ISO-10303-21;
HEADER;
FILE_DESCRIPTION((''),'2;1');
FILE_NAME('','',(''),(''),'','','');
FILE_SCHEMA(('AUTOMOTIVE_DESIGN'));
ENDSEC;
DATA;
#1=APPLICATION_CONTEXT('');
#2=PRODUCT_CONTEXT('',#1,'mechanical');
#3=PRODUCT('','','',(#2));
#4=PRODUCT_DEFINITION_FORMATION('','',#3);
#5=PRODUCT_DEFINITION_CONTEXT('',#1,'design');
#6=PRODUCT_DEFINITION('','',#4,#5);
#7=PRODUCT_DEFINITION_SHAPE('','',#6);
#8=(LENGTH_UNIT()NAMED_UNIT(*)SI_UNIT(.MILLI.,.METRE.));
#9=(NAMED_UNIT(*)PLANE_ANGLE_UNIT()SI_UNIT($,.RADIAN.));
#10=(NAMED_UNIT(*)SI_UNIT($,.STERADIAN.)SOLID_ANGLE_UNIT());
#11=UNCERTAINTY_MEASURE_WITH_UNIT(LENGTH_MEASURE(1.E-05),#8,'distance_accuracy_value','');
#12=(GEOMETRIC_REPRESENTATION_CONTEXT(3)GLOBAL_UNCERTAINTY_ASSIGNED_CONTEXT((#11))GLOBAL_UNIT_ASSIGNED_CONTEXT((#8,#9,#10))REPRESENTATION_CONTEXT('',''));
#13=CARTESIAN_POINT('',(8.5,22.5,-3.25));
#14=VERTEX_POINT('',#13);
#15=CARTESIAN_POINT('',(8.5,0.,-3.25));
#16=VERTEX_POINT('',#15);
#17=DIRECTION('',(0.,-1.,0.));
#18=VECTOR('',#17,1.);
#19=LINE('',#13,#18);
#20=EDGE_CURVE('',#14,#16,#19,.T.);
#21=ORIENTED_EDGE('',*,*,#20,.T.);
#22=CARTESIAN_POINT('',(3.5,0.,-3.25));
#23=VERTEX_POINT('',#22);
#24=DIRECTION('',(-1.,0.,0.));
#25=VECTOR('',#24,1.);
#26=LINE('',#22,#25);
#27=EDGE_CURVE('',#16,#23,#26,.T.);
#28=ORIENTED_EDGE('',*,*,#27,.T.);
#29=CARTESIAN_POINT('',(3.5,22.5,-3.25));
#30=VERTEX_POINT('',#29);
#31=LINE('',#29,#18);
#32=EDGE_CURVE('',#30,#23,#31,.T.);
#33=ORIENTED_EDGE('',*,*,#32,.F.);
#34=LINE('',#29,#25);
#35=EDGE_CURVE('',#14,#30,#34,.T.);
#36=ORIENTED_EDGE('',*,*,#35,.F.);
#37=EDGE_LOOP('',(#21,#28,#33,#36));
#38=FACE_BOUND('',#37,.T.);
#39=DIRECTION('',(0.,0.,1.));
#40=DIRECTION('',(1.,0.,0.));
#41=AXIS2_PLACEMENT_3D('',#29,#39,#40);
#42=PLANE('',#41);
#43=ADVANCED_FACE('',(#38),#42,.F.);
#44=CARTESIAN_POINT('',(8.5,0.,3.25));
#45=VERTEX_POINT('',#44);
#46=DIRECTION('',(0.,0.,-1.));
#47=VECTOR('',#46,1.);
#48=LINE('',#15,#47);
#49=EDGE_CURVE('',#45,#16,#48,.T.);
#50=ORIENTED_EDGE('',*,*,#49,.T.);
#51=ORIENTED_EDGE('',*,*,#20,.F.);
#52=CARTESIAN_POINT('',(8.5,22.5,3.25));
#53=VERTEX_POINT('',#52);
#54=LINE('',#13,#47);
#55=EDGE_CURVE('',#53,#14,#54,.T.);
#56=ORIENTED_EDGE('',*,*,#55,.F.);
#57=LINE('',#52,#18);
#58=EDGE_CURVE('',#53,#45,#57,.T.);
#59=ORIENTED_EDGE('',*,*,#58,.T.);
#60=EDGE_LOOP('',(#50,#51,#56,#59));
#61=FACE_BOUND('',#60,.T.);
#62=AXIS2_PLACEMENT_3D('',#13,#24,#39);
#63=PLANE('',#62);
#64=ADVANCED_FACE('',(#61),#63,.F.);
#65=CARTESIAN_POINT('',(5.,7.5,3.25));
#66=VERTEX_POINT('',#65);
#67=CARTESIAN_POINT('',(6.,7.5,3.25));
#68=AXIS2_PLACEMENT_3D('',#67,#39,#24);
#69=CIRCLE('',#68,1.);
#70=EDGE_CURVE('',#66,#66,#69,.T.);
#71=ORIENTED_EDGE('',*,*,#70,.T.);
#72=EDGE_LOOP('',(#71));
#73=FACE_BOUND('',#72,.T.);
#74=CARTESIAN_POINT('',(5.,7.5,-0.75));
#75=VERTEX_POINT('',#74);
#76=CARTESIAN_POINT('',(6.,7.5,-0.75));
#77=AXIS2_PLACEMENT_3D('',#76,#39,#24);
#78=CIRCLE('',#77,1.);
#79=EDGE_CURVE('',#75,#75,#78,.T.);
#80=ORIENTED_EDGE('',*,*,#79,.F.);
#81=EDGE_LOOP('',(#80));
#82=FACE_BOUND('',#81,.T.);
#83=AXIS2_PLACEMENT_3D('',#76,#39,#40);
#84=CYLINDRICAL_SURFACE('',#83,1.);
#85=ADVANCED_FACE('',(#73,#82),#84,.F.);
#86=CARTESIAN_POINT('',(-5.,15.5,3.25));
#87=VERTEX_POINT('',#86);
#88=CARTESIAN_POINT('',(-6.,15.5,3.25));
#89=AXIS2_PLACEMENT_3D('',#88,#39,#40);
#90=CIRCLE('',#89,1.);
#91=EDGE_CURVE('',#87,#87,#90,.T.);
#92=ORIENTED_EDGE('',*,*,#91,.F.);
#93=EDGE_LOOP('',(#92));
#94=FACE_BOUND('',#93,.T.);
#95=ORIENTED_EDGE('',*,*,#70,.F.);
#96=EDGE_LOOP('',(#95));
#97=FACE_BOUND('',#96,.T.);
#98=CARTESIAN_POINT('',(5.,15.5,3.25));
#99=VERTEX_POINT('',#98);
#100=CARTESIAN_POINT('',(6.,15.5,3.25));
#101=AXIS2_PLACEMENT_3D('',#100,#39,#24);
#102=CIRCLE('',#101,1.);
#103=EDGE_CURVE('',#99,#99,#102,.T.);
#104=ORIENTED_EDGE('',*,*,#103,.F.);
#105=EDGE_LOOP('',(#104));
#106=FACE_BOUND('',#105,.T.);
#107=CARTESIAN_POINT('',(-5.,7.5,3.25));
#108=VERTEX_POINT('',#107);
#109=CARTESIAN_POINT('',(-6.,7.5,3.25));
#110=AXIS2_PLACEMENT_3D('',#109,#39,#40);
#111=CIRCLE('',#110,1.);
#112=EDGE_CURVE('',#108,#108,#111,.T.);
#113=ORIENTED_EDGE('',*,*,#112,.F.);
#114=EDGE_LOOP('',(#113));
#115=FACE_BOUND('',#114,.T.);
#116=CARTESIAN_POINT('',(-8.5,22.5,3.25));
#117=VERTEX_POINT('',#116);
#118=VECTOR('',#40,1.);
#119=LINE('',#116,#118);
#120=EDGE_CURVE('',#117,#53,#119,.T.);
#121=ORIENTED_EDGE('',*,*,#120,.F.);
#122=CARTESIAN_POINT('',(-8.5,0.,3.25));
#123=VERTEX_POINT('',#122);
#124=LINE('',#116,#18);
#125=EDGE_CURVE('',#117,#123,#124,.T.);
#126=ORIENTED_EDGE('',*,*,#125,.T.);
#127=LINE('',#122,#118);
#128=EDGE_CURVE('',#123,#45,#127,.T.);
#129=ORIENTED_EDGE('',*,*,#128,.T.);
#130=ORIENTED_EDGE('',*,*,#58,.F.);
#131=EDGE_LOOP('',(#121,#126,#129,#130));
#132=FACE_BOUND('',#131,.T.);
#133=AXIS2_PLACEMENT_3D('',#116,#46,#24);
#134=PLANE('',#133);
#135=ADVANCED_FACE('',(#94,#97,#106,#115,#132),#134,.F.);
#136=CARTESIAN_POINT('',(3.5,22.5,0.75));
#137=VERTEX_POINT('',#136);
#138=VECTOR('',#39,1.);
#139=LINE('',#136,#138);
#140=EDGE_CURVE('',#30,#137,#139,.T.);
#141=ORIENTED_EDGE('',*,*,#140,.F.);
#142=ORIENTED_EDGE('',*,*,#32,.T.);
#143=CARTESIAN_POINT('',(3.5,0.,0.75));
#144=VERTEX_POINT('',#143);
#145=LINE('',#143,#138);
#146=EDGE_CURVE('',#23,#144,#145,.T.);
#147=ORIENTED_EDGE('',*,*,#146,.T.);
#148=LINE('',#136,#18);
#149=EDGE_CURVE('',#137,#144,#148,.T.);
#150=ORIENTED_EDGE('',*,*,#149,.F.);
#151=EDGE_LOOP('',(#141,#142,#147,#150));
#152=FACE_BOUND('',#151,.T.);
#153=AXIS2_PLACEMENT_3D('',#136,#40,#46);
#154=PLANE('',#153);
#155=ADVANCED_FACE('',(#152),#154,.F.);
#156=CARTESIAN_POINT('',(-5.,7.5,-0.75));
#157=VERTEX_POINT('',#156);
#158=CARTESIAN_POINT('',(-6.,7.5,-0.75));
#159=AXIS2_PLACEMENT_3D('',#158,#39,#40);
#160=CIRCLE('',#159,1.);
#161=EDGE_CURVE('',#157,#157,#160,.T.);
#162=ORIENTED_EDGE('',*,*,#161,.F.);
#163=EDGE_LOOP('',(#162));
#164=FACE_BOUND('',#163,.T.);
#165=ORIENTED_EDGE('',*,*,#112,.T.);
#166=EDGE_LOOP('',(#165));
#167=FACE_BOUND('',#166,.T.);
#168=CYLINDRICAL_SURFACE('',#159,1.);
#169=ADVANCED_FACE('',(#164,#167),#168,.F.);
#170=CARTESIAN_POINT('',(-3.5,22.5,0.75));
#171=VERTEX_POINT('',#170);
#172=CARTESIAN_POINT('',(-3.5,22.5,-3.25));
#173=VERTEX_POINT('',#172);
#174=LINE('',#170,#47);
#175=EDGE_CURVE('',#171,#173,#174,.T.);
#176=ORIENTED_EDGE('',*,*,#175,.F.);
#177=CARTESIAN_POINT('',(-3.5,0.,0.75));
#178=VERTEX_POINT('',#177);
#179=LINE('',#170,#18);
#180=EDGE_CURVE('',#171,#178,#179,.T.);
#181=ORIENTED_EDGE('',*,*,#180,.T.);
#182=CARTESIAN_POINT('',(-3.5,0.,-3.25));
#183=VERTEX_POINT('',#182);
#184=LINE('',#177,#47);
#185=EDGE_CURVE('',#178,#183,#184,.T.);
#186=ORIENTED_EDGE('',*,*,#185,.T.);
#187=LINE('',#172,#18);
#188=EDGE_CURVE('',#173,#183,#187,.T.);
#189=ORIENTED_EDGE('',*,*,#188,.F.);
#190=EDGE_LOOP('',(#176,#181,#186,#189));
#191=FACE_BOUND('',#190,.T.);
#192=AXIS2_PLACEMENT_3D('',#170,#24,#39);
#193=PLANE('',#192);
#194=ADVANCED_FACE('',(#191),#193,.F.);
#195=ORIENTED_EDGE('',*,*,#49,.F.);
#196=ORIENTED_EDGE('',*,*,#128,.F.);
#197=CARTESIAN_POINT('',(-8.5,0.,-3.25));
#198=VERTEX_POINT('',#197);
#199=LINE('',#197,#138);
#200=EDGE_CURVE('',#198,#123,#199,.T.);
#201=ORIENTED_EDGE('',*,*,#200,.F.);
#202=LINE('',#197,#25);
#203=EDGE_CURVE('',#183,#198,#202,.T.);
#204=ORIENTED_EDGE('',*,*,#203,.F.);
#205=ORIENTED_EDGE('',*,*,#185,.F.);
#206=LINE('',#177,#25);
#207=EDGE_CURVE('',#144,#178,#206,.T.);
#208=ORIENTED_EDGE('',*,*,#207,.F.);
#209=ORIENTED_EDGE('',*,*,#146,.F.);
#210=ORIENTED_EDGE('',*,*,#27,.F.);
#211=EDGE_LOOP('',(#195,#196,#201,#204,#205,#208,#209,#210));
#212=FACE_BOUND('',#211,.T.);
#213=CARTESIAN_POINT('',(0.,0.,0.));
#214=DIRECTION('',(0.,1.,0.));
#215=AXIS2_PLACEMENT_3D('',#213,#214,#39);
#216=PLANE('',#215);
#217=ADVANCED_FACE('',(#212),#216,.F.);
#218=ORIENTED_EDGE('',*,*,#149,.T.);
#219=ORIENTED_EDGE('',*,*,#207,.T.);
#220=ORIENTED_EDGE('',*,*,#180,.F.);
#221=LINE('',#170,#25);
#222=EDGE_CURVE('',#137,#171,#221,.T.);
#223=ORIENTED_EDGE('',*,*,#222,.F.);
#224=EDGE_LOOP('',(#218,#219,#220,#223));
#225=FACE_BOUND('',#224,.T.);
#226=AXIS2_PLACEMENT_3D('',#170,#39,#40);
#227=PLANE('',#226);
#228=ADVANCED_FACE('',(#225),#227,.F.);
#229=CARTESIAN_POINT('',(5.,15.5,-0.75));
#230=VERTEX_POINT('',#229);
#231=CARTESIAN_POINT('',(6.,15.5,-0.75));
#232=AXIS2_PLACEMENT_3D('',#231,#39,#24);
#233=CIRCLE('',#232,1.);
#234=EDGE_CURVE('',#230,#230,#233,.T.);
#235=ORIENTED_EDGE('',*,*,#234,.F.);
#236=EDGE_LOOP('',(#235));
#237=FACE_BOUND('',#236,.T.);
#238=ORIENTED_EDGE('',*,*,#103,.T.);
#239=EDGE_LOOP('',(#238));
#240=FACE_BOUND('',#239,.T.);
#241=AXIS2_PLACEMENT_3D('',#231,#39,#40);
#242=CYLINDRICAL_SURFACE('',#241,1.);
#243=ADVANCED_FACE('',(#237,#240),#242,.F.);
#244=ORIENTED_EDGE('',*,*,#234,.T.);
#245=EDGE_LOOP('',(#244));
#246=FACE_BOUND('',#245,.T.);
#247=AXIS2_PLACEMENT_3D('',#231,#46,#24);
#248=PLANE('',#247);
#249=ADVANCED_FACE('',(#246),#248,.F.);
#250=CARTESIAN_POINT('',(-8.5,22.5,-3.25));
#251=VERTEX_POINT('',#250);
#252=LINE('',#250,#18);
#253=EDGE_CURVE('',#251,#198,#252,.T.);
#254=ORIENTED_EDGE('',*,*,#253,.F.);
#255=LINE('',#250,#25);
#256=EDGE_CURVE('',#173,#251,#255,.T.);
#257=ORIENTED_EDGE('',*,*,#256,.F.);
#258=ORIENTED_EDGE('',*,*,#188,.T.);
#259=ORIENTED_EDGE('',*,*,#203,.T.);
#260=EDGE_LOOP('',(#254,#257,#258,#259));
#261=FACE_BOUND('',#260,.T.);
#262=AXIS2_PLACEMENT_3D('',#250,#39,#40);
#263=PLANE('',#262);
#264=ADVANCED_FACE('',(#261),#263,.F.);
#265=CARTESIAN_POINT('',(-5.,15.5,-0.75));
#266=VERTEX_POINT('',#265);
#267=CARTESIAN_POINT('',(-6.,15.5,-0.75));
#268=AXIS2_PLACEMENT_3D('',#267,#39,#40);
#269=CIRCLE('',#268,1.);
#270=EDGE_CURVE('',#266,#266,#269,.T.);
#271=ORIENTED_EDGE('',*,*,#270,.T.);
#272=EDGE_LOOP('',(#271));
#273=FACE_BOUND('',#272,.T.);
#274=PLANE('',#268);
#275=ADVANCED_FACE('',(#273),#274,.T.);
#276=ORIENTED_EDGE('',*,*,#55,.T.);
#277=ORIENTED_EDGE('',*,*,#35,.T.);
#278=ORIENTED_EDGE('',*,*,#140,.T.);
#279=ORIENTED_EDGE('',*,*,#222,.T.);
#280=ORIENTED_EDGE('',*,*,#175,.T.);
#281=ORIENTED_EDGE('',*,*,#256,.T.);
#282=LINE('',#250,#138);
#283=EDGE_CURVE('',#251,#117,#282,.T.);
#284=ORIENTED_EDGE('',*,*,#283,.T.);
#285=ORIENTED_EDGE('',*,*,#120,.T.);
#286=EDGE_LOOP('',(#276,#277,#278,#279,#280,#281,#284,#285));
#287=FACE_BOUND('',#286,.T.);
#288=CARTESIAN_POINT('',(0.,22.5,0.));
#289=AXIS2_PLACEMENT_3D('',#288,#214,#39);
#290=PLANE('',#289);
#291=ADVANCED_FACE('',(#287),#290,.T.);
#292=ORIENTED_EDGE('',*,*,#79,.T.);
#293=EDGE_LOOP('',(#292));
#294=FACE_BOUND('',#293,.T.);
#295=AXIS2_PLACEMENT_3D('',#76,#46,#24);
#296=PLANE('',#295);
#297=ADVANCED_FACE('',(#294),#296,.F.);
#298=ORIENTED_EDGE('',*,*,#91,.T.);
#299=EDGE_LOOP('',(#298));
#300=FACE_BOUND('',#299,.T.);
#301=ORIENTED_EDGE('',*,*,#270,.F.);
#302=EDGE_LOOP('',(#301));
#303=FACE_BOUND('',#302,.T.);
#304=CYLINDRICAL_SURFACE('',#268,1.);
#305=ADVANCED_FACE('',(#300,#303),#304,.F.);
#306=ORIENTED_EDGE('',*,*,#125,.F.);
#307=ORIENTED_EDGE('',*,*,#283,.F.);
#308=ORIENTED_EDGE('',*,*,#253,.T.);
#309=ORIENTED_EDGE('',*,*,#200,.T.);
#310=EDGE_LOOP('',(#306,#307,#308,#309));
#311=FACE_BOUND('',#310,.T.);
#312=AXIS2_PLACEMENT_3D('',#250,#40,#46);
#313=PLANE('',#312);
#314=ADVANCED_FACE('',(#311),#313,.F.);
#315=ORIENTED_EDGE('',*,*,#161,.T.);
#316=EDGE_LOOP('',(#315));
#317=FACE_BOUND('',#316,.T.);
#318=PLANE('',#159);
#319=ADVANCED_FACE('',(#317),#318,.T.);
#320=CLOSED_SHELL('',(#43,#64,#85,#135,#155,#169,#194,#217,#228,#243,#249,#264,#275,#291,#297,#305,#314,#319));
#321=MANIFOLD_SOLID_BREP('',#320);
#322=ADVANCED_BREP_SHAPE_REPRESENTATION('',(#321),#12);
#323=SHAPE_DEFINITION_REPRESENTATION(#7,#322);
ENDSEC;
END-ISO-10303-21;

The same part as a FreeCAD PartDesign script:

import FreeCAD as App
import Part
import Sketcher


def add_polygon(sketch, points):
    """Adds a closed chain of lines whose ends are joined by coincident constraints."""
    first, n = sketch.GeometryCount, len(points)
    for a, b in zip(points, points[1:] + points[:1]):
        sketch.addGeometry(Part.LineSegment(App.Vector(*a, 0), App.Vector(*b, 0)), False)
    for i in range(n):
        sketch.addConstraint(Sketcher.Constraint("Coincident", first + i, 2, first + (i + 1) % n, 1))

doc = App.newDocument("Part")
body = doc.addObject("PartDesign::Body", "Body")

# Sketch on XZ plane
sketch1 = body.newObject("Sketcher::SketchObject", "Sketch")
sketch1.AttachmentSupport = (doc.getObject("XZ_Plane"), [""])
sketch1.MapMode = "FlatFace"
add_polygon(sketch1, [(3.5, 0.8), (-3.5, 0.8), (-3.5, -3.2), (-8.5, -3.2), (-8.5, 3.2), (8.5, 3.2), (8.5, -3.2), (3.5, -3.2)])  # lines 0-7
sketch1.addConstraint([
    Sketcher.Constraint("Horizontal", 0),
    Sketcher.Constraint("Vertical", 1),
    Sketcher.Constraint("Horizontal", 2),
    Sketcher.Constraint("Vertical", 3),
    Sketcher.Constraint("Horizontal", 4),
    Sketcher.Constraint("Vertical", 5),
    Sketcher.Constraint("Horizontal", 6),
    Sketcher.Constraint("Vertical", 7),
    Sketcher.Constraint("Symmetric", 2, 2, 4, 2, -1, 1),
    Sketcher.Constraint("Symmetric", 1, 2, 6, 2, -2),
    Sketcher.Constraint("DistanceX", 0, 2, 0, 1, 7.0),
    Sketcher.Constraint("DistanceX", 2, 2, 2, 1, 5.0),
    Sketcher.Constraint("DistanceY", 1, 2, 1, 1, 4.0),
    Sketcher.Constraint("DistanceY", 3, 1, 3, 2, 6.5),
])
pad1 = body.newObject("PartDesign::Pad", "Pad")
pad1.Profile = sketch1
pad1.Length = 22.5
pad1.Reversed = True

# Sketch on XY plane
sketch2 = body.newObject("Sketcher::SketchObject", "Sketch001")
sketch2.AttachmentSupport = (doc.getObject("XY_Plane"), [""])
sketch2.MapMode = "FlatFace"
sketch2.AttachmentOffset = App.Placement(App.Vector(0, 0, 3.25), App.Rotation())
sketch2.addGeometry([
    Part.Circle(App.Vector(-6, 15.5, 0), App.Vector(0, 0, 1), 1),
    Part.Circle(App.Vector(-6, 7.5, 0), App.Vector(0, 0, 1), 1),
    Part.Circle(App.Vector(6, 7.5, 0), App.Vector(0, 0, 1), 1),
    Part.Circle(App.Vector(6, 15.5, 0), App.Vector(0, 0, 1), 1),
], False)
sketch2.addConstraint([
    Sketcher.Constraint("Equal", 0, 1),
    Sketcher.Constraint("Equal", 1, 2),
    Sketcher.Constraint("Equal", 2, 3),
    Sketcher.Constraint("Symmetric", 1, 3, 2, 3, -2),
    Sketcher.Constraint("Symmetric", 0, 3, 3, 3, -2),
    Sketcher.Constraint("Vertical", 0, 3, 1, 3),
    Sketcher.Constraint("Diameter", 0, 2.0),
    Sketcher.Constraint("DistanceX", 0, 3, -1, 1, 6.0),
    Sketcher.Constraint("DistanceY", 1, 3, 0, 3, 8.0),
    Sketcher.Constraint("DistanceY", -1, 1, 0, 3, 15.5),
])
pocket1 = body.newObject("PartDesign::Pocket", "Pocket")
pocket1.Profile = sketch2
pocket1.Length = 4

doc.recompute()
